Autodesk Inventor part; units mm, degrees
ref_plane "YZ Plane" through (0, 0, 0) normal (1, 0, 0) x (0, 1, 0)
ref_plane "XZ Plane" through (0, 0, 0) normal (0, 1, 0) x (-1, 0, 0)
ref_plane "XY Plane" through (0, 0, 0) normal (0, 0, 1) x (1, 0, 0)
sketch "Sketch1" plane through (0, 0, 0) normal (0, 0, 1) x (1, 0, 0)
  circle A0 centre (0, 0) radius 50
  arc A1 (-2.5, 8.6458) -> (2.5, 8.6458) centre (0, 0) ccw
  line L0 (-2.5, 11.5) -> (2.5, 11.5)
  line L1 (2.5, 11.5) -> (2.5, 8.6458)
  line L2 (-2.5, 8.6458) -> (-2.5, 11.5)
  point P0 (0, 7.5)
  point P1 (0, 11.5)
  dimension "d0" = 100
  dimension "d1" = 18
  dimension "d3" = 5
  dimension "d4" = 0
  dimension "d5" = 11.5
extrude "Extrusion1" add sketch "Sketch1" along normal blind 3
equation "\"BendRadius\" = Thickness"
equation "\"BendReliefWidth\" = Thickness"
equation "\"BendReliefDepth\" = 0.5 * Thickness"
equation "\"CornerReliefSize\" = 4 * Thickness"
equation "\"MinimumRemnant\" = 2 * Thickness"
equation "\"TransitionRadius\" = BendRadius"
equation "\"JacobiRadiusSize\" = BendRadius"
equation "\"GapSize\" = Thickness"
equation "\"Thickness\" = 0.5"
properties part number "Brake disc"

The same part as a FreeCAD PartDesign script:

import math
import FreeCAD as App
import Part
import Sketcher

V = App.Vector

doc = App.newDocument("Part")
body = doc.addObject("PartDesign::Body", "Body")

# Sketch on XY plane
sketch1 = body.newObject("Sketcher::SketchObject", "Sketch")
sketch1.AttachmentSupport = (doc.getObject("XY_Plane"), [""])
sketch1.MapMode = "FlatFace"
sketch1.addGeometry([
    Part.Circle(V(0, 0, 0), V(0, 0, 1), 50),  # 0
    Part.ArcOfCircle(Part.Circle(V(0, 0, 0), V(0, 0, 1), 9), math.radians(106), math.radians(434)),  # 1
    Part.LineSegment(V(-2.5, 8.6, 0), V(-2.5, 11.5, 0)),  # 2
    Part.LineSegment(V(-2.5, 11.5, 0), V(2.5, 11.5, 0)),  # 3
    Part.LineSegment(V(2.5, 11.5, 0), V(2.5, 8.6, 0)),  # 4
], False)
sketch1.addConstraint([
    Sketcher.Constraint("Coincident", 1, 1, 2, 1),
    Sketcher.Constraint("Coincident", 2, 2, 3, 1),
    Sketcher.Constraint("Coincident", 3, 2, 4, 1),
    Sketcher.Constraint("Coincident", 4, 2, 1, 2),
    Sketcher.Constraint("Vertical", 2),
    Sketcher.Constraint("Horizontal", 3),
    Sketcher.Constraint("Vertical", 4),
    Sketcher.Constraint("Coincident", 0, 3, -1, 1),
    Sketcher.Constraint("Coincident", 1, 3, -1, 1),
    Sketcher.Constraint("Horizontal", 1, 1, 4, 2),
    Sketcher.Constraint("Diameter", 0, 100.0),
    Sketcher.Constraint("Radius", 1, 9.0),
    Sketcher.Constraint("DistanceX", 3, 1, 3, 2, 5.0),
    Sketcher.Constraint("DistanceY", -1, 1, 2, 2, 11.5),
])
pad1 = body.newObject("PartDesign::Pad", "Pad")
pad1.Profile = sketch1
pad1.Length = 3

doc.recompute()
